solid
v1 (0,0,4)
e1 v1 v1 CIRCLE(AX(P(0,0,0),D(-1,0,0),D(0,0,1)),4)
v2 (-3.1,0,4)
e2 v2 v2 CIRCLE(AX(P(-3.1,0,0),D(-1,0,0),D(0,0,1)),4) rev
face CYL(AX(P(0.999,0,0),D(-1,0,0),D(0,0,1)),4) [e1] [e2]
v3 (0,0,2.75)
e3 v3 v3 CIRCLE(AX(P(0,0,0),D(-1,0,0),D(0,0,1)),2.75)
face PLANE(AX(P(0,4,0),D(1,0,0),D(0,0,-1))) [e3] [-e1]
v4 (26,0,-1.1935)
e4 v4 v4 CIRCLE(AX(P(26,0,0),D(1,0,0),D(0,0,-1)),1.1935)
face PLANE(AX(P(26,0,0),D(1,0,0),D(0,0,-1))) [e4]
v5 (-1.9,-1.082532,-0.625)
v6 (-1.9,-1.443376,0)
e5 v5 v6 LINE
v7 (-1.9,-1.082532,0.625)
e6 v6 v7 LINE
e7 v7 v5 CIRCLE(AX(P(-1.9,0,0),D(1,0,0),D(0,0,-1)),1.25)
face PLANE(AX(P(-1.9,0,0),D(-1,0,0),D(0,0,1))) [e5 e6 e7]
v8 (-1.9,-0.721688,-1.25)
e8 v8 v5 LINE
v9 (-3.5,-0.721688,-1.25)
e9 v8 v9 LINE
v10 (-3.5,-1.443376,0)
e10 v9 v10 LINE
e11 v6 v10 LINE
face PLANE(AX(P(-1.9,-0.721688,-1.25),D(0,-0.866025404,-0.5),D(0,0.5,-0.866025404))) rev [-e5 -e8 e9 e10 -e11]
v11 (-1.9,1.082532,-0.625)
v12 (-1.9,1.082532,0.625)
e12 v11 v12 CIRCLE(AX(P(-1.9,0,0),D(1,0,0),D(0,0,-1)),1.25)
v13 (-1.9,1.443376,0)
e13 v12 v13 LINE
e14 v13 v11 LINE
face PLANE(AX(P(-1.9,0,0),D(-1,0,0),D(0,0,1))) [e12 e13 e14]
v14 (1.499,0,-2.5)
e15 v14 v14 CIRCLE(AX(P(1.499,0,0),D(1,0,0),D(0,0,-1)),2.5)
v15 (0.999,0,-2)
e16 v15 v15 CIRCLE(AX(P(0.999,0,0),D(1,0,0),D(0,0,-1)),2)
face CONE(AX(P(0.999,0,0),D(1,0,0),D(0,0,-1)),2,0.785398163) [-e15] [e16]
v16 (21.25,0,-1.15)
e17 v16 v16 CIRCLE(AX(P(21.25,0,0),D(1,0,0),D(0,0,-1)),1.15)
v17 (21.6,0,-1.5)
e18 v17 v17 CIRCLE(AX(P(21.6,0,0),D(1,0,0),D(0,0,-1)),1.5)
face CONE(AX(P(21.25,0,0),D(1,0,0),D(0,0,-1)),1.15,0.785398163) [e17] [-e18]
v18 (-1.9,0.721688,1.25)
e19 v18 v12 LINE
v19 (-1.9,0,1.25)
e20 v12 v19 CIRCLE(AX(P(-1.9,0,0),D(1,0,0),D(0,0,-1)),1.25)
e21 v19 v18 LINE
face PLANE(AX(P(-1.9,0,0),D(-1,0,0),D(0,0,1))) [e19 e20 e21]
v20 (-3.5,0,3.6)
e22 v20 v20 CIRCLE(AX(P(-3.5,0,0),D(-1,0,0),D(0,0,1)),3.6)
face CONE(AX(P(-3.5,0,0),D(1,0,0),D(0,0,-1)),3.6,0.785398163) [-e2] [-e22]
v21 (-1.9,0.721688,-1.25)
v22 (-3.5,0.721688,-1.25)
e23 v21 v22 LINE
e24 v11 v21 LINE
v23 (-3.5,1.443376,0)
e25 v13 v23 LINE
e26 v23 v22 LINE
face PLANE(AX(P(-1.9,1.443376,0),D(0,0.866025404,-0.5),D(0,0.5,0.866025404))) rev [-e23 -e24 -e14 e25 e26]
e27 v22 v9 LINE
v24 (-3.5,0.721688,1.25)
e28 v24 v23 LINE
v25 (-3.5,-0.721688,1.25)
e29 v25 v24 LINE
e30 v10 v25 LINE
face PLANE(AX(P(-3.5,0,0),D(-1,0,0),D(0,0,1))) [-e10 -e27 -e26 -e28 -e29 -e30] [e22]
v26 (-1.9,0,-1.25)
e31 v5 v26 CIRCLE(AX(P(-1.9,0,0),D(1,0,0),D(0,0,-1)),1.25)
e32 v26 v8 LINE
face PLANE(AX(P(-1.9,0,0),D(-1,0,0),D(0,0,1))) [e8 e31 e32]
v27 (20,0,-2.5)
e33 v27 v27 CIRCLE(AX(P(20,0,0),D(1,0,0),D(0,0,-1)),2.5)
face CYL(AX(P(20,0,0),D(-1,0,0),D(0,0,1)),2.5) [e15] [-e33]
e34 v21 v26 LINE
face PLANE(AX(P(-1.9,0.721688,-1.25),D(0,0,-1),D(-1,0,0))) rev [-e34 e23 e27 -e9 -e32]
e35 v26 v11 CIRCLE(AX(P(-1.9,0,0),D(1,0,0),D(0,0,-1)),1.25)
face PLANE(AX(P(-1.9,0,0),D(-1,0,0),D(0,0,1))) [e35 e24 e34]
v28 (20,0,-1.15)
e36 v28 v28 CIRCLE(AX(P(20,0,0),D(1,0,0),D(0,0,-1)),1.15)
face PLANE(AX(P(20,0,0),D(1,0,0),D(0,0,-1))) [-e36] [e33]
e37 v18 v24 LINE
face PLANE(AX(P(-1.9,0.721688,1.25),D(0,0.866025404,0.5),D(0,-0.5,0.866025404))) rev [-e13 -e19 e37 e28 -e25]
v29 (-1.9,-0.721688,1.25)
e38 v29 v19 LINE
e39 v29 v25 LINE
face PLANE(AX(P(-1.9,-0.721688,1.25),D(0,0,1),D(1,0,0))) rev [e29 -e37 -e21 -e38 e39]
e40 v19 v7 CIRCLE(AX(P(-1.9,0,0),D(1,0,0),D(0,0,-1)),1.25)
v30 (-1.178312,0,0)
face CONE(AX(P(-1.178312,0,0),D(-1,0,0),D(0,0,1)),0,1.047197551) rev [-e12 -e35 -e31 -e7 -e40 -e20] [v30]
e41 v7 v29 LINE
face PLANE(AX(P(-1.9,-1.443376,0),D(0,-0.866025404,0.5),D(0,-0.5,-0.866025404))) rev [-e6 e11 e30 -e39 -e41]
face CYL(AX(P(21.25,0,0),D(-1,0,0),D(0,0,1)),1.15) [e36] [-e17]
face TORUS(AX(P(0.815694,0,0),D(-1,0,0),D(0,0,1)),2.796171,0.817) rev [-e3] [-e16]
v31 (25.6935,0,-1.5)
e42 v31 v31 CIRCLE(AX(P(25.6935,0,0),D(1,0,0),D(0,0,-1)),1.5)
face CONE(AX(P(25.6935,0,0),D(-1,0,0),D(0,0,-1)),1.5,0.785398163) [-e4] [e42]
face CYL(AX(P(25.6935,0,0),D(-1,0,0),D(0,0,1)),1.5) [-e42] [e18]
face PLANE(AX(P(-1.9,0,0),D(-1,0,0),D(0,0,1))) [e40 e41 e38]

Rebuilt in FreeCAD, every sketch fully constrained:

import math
import FreeCAD as App
import Part
import Sketcher

V = App.Vector
Q = App.Units.Quantity


def edges_at(feature, points):
    """Names of the edges that pass closest to the given points."""
    edges = feature.Shape.Edges
    near = lambda p: min(range(len(edges)), key=lambda i: edges[i].distToShape(Part.Vertex(*p))[0])
    return sorted({f"Edge{near(p) + 1}" for p in points})

doc = App.newDocument("Part")
body = doc.addObject("PartDesign::Body", "Body")

sketch1 = body.newObject("Sketcher::SketchObject", "Sketch")
sketch1.AttachmentSupport = (doc.getObject("XY_Plane"), [""])
sketch1.MapMode = "FlatFace"
sketch1.addGeometry([
    Part.LineSegment(V(1, 2, 0), V(1, 0, 0)),
    Part.LineSegment(V(1, 0, 0), V(-3.5, 0, 0)),
    Part.LineSegment(V(-3.5, 0, 0), V(-3.5, 4, 0)),
    Part.LineSegment(V(-3.5, 4, 0), V(0, 4, 0)),
    Part.LineSegment(V(0, 4, 0), V(0, 2.8, 0)),
    Part.ArcOfCircle(Part.Circle(V(0.8, 2.8, 0), V(0, 0, 1), 0.8), math.radians(-177), math.radians(-77)),
], False)
sketch1.addConstraint([
    Sketcher.Constraint("Coincident", 0, 2, 1, 1),
    Sketcher.Constraint("Coincident", 1, 2, 2, 1),
    Sketcher.Constraint("Coincident", 2, 2, 3, 1),
    Sketcher.Constraint("Coincident", 3, 2, 4, 1),
    Sketcher.Constraint("Coincident", 4, 2, 5, 1),
    Sketcher.Constraint("Coincident", 5, 2, 0, 1),
    Sketcher.Constraint("Vertical", 0),
    Sketcher.Constraint("Horizontal", 1),
    Sketcher.Constraint("Vertical", 2),
    Sketcher.Constraint("Horizontal", 3),
    Sketcher.Constraint("Vertical", 4),
    Sketcher.Constraint("PointOnObject", 0, 2, -1),
    Sketcher.Constraint("PointOnObject", 3, 2, -2),
    Sketcher.Constraint("DistanceY", 0, 2, 0, 1, Q("2 mm")),
    Sketcher.Constraint("DistanceY", 2, 1, 2, 2, Q("4 mm")),
    Sketcher.Constraint("DistanceX", 3, 1, 3, 2, Q("3.5 mm")),
    Sketcher.Constraint("Radius", 5, Q("0.817 mm")),
    Sketcher.Constraint("DistanceY", 4, 2, 4, 1, Q("1.25 mm")),
    Sketcher.Constraint("DistanceX", 1, 2, 1, 1, Q("4.499 mm")),
])
revolution = body.newObject("PartDesign::Revolution", "Revolution")
revolution.Profile = sketch1
revolution.ReferenceAxis = (sketch1, ["H_Axis"])
revolution.Angle = 360

sketch2 = body.newObject("Sketcher::SketchObject", "Sketch001")
sketch2.AttachmentSupport = (doc.getObject("YZ_Plane"), [""])
sketch2.MapMode = "FlatFace"
sketch2.AttachmentOffset = App.Placement(V(0, 0, 0.999), App.Rotation())
sketch2.addGeometry(Part.Circle(V(0, 0, 0), V(0, 0, 1), 2), False)
sketch2.addConstraint([
    Sketcher.Constraint("Coincident", 0, 3, -1, 1),
    Sketcher.Constraint("Diameter", 0, Q("4 mm")),
])
pad1 = body.newObject("PartDesign::Pad", "Pad")
pad1.Profile = sketch2
pad1.Length = 0.5
pad1.TaperAngle = 45

sketch3 = body.newObject("Sketcher::SketchObject", "Sketch002")
sketch3.AttachmentSupport = (doc.getObject("YZ_Plane"), [""])
sketch3.MapMode = "FlatFace"
sketch3.AttachmentOffset = App.Placement(V(0, 0, 1.499), App.Rotation())
sketch3.addGeometry(Part.Circle(V(0, 0, 0), V(0, 0, 1), 2.5), False)
sketch3.addConstraint([
    Sketcher.Constraint("Coincident", 0, 3, -1, 1),
    Sketcher.Constraint("Diameter", 0, Q("5 mm")),
])
pad2 = body.newObject("PartDesign::Pad", "Pad001")
pad2.Profile = sketch3
pad2.Length = 18.501

sketch4 = body.newObject("Sketcher::SketchObject", "Sketch003")
sketch4.AttachmentSupport = (doc.getObject("YZ_Plane"), [""])
sketch4.MapMode = "FlatFace"
sketch4.AttachmentOffset = App.Placement(V(0, 0, 20), App.Rotation())
sketch4.addGeometry(Part.Circle(V(0, 0, 0), V(0, 0, 1), 1.1), False)
sketch4.addConstraint([
    Sketcher.Constraint("Coincident", 0, 3, -1, 1),
    Sketcher.Constraint("Diameter", 0, Q("2.3 mm")),
])
pad3 = body.newObject("PartDesign::Pad", "Pad002")
pad3.Profile = sketch4
pad3.Length = 1.25

sketch5 = body.newObject("Sketcher::SketchObject", "Sketch004")
sketch5.AttachmentSupport = (doc.getObject("YZ_Plane"), [""])
sketch5.MapMode = "FlatFace"
sketch5.AttachmentOffset = App.Placement(V(0, 0, 21.25), App.Rotation())
sketch5.addGeometry(Part.Circle(V(0, 0, 0), V(0, 0, 1), 1.1), False)
sketch5.addConstraint([
    Sketcher.Constraint("Coincident", 0, 3, -1, 1),
    Sketcher.Constraint("Diameter", 0, Q("2.3 mm")),
])
pad4 = body.newObject("PartDesign::Pad", "Pad003")
pad4.Profile = sketch5
pad4.Length = 0.35
pad4.TaperAngle = 45

sketch6 = body.newObject("Sketcher::SketchObject", "Sketch005")
sketch6.AttachmentSupport = (doc.getObject("YZ_Plane"), [""])
sketch6.MapMode = "FlatFace"
sketch6.AttachmentOffset = App.Placement(V(0, 0, 21.6), App.Rotation())
sketch6.addGeometry(Part.Circle(V(0, 0, 0), V(0, 0, 1), 1.5), False)
sketch6.addConstraint([
    Sketcher.Constraint("Coincident", 0, 3, -1, 1),
    Sketcher.Constraint("Diameter", 0, Q("3 mm")),
])
pad5 = body.newObject("PartDesign::Pad", "Pad004")
pad5.Profile = sketch6
pad5.Length = 4.0935

sketch7 = body.newObject("Sketcher::SketchObject", "Sketch006")
sketch7.AttachmentSupport = (doc.getObject("YZ_Plane"), [""])
sketch7.MapMode = "FlatFace"
sketch7.AttachmentOffset = App.Placement(V(0, 0, 25.6935), App.Rotation())
sketch7.addGeometry(Part.Circle(V(0, 0, 0), V(0, 0, 1), 1.5), False)
sketch7.addConstraint([
    Sketcher.Constraint("Coincident", 0, 3, -1, 1),
    Sketcher.Constraint("Diameter", 0, Q("3 mm")),
])
pad6 = body.newObject("PartDesign::Pad", "Pad005")
pad6.Profile = sketch7
pad6.Length = 0.3065
pad6.TaperAngle = -45

sketch8 = body.newObject("Sketcher::SketchObject", "Sketch007")
sketch8.AttachmentSupport = (doc.getObject("YZ_Plane"), [""])
sketch8.MapMode = "FlatFace"
sketch8.AttachmentOffset = App.Placement(V(0, 0, -3.5), App.Rotation())
sketch8.addGeometry([
    Part.LineSegment(V(1.4, 0, 0), V(0.7, -1.2, 0)),
    Part.LineSegment(V(0.7, -1.2, 0), V(-0.7, -1.2, 0)),
    Part.LineSegment(V(-0.7, -1.2, 0), V(-1.4, 0, 0)),
    Part.LineSegment(V(-1.4, 0, 0), V(-0.7, 1.2, 0)),
    Part.LineSegment(V(-0.7, 1.2, 0), V(0.7, 1.2, 0)),
    Part.LineSegment(V(0.7, 1.2, 0), V(1.4, 0, 0)),
], False)
sketch8.addConstraint([
    Sketcher.Constraint("Coincident", 0, 2, 1, 1),
    Sketcher.Constraint("Coincident", 1, 2, 2, 1),
    Sketcher.Constraint("Coincident", 2, 2, 3, 1),
    Sketcher.Constraint("Coincident", 3, 2, 4, 1),
    Sketcher.Constraint("Coincident", 4, 2, 5, 1),
    Sketcher.Constraint("Coincident", 5, 2, 0, 1),
    Sketcher.Constraint("Horizontal", 1),
    Sketcher.Constraint("Horizontal", 4),
    Sketcher.Constraint("Symmetric", 0, 2, 3, 2, -1, 1),
    Sketcher.Constraint("Symmetric", 2, 2, 5, 2, -1, 1),
    Sketcher.Constraint("PointOnObject", 2, 2, -1),
    Sketcher.Constraint("Parallel", 2, 5),
    Sketcher.Constraint("Vertical", 1, 2, 3, 2),
    Sketcher.Constraint("Angle", 0, Q("-120 deg")),
    Sketcher.Constraint("DistanceY", 1, 2, 3, 2, Q("2.5 mm")),
    Sketcher.Constraint("DistanceX", 1, 2, 1, 1, Q("1.443376 mm")),
])
pocket1 = body.newObject("PartDesign::Pocket", "Pocket")
pocket1.Profile = sketch8
pocket1.Length = 1.6
pocket1.Reversed = True

sketch9 = body.newObject("Sketcher::SketchObject", "Sketch008")
sketch9.AttachmentSupport = (doc.getObject("XY_Plane"), [""])
sketch9.MapMode = "FlatFace"
sketch9.addGeometry([
    Part.LineSegment(V(-1.9, 1.2, 0), V(-1.9, 0, 0)),
    Part.LineSegment(V(-1.9, 0, 0), V(-1.2, 0, 0)),
    Part.LineSegment(V(-1.2, 0, 0), V(-1.9, 1.2, 0)),
], False)
sketch9.addConstraint([
    Sketcher.Constraint("Coincident", 0, 2, 1, 1),
    Sketcher.Constraint("Coincident", 1, 2, 2, 1),
    Sketcher.Constraint("Coincident", 2, 2, 0, 1),
    Sketcher.Constraint("Vertical", 0),
    Sketcher.Constraint("Horizontal", 1),
    Sketcher.Constraint("PointOnObject", 0, 2, -1),
    Sketcher.Constraint("Angle", 2, Q("120 deg")),
    Sketcher.Constraint("DistanceY", 0, 2, 0, 1, Q("1.25 mm")),
    Sketcher.Constraint("DistanceX", 0, 2, -1, 1, Q("1.9 mm")),
])
groove = body.newObject("PartDesign::Groove", "Groove")
groove.Profile = sketch9
groove.ReferenceAxis = (sketch9, ["H_Axis"])
groove.Angle = 360
doc.recompute()

chamfer = body.newObject("PartDesign::Chamfer", "Chamfer")
chamfer.Base = (groove, edges_at(groove, [(-3.5, -4, 0)]))
chamfer.Size = 0.4

doc.recompute()
